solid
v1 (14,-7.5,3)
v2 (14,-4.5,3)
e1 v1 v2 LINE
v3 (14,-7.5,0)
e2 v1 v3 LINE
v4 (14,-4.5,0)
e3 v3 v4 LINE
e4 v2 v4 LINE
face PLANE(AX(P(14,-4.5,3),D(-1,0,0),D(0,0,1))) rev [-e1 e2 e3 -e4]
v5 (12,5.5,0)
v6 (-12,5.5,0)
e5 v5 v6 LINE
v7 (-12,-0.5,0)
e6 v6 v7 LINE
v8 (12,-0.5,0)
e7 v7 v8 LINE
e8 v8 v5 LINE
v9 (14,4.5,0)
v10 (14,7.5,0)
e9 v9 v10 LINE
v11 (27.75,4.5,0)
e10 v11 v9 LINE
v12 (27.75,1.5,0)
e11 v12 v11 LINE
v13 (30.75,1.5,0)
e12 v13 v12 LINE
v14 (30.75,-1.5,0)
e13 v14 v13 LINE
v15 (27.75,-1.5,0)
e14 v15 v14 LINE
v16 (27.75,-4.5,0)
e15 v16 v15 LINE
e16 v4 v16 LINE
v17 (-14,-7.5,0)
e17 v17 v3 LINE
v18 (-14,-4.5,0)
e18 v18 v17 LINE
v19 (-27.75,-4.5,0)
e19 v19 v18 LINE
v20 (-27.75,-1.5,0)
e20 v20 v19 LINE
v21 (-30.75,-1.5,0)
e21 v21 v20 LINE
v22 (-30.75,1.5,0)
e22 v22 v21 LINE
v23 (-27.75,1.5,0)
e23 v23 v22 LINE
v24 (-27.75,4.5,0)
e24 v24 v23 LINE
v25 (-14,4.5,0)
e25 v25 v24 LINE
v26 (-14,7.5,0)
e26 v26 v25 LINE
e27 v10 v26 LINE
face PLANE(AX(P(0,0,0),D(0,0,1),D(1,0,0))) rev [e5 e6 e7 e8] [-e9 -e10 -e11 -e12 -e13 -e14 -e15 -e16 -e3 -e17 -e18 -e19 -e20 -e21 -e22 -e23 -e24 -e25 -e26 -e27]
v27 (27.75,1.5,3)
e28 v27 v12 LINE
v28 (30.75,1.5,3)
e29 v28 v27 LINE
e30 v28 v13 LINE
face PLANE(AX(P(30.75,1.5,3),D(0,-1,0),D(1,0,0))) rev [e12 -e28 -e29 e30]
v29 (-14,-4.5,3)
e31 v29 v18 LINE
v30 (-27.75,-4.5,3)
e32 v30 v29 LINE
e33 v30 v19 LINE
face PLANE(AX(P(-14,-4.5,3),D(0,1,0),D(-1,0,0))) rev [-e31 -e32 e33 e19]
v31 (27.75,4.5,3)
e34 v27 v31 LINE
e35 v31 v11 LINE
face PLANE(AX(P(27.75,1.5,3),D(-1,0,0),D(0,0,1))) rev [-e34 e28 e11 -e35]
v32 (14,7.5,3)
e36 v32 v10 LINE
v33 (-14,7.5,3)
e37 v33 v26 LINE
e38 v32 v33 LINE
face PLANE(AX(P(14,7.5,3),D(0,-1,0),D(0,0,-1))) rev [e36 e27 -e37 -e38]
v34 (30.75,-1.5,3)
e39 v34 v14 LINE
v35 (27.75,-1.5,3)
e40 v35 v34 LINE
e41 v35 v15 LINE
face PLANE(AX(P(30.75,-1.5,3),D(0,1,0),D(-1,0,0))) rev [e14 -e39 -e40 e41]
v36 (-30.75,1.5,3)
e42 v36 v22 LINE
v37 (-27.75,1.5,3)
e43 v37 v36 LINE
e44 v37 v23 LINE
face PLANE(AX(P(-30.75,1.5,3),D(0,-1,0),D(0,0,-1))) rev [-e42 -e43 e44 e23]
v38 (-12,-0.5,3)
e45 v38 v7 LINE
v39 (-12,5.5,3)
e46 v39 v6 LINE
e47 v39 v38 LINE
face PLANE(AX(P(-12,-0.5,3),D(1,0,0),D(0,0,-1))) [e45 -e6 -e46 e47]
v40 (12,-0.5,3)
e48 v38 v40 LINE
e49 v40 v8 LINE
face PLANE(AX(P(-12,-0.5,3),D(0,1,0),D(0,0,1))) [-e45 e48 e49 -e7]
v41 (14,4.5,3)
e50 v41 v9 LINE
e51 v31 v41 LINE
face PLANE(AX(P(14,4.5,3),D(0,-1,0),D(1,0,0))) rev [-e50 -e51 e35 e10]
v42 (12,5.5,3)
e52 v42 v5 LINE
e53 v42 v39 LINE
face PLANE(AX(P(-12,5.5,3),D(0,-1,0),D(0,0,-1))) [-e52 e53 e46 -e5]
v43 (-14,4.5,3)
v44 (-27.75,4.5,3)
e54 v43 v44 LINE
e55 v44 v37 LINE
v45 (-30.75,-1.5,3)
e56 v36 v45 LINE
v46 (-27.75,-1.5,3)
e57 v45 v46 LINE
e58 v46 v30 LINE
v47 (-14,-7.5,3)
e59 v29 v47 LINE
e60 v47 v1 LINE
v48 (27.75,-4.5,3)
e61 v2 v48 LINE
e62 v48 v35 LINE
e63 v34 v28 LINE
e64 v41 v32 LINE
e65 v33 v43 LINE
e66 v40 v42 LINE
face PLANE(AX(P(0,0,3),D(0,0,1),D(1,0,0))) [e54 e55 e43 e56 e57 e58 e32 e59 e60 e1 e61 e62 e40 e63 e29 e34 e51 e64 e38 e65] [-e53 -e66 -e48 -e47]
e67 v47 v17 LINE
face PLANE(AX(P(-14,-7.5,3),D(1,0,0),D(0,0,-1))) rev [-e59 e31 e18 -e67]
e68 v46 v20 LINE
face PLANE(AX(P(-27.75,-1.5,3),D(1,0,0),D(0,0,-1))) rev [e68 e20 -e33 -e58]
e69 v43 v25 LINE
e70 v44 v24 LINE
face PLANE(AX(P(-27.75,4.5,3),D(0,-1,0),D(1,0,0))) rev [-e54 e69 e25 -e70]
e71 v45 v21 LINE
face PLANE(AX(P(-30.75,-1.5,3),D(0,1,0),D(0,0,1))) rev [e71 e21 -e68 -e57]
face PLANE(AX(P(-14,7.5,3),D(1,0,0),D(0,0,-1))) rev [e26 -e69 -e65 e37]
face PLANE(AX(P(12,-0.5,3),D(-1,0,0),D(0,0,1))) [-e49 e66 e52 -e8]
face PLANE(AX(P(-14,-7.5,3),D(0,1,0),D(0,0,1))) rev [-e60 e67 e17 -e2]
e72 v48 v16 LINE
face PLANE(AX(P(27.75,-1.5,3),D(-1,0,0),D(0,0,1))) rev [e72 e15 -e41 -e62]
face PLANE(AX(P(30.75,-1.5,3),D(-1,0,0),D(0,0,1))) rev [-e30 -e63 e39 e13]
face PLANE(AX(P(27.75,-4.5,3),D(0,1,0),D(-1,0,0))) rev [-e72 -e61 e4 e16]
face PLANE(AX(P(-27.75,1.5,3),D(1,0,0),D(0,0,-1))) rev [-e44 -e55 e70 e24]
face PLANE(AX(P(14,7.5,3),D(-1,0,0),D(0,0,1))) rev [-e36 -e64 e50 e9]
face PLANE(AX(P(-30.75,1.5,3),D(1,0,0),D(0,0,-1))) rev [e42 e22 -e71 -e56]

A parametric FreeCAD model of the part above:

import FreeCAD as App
import Part
import Sketcher
Q = App.Units.Quantity


def add_polygon(sketch, points):
    """Adds a closed chain of lines whose ends are joined by coincident constraints."""
    first, n = sketch.GeometryCount, len(points)
    for a, b in zip(points, points[1:] + points[:1]):
        sketch.addGeometry(Part.LineSegment(App.Vector(*a, 0), App.Vector(*b, 0)), False)
    for i in range(n):
        sketch.addConstraint(Sketcher.Constraint("Coincident", first + i, 2, first + (i + 1) % n, 1))

doc = App.newDocument("Part")
body = doc.addObject("PartDesign::Body", "Body")

# Sketch on XY plane
sketch1 = body.newObject("Sketcher::SketchObject", "Sketch")
sketch1.AttachmentSupport = (doc.getObject("XY_Plane"), [""])
sketch1.MapMode = "FlatFace"
add_polygon(sketch1, [(-14, -7.5), (14, -7.5), (14, -4.5), (27.8, -4.5), (27.8, -1.5), (30.8, -1.5), (30.8, 1.5), (27.8, 1.5), (27.8, 4.5), (14, 4.5), (14, 7.5), (-14, 7.5), (-14, 4.5), (-27.8, 4.5), (-27.8, 1.5), (-30.8, 1.5), (-30.8, -1.5), (-27.8, -1.5), (-27.8, -4.5), (-14, -4.5)])  # lines 0-19
add_polygon(sketch1, [(12, -0.5), (-12, -0.5), (-12, 5.5), (12, 5.5)])  # lines 20-23
sketch1.addConstraint(Sketcher.Constraint("Horizontal", 0))
sketch1.addConstraint(Sketcher.Constraint("Vertical", 1))
sketch1.addConstraint(Sketcher.Constraint("Horizontal", 2))
sketch1.addConstraint(Sketcher.Constraint("Vertical", 3))
sketch1.addConstraint(Sketcher.Constraint("Horizontal", 4))
sketch1.addConstraint(Sketcher.Constraint("Vertical", 5))
sketch1.addConstraint(Sketcher.Constraint("Horizontal", 6))
sketch1.addConstraint(Sketcher.Constraint("Vertical", 7))
sketch1.addConstraint(Sketcher.Constraint("Horizontal", 8))
sketch1.addConstraint(Sketcher.Constraint("Vertical", 9))
sketch1.addConstraint(Sketcher.Constraint("Horizontal", 10))
sketch1.addConstraint(Sketcher.Constraint("Vertical", 11))
sketch1.addConstraint(Sketcher.Constraint("Horizontal", 12))
sketch1.addConstraint(Sketcher.Constraint("Vertical", 13))
sketch1.addConstraint(Sketcher.Constraint("Horizontal", 14))
sketch1.addConstraint(Sketcher.Constraint("Vertical", 15))
sketch1.addConstraint(Sketcher.Constraint("Horizontal", 16))
sketch1.addConstraint(Sketcher.Constraint("Vertical", 17))
sketch1.addConstraint(Sketcher.Constraint("Horizontal", 18))
sketch1.addConstraint(Sketcher.Constraint("Vertical", 19))
sketch1.addConstraint(Sketcher.Constraint("Horizontal", 20))
sketch1.addConstraint(Sketcher.Constraint("Vertical", 21))
sketch1.addConstraint(Sketcher.Constraint("Horizontal", 22))
sketch1.addConstraint(Sketcher.Constraint("Vertical", 23))
sketch1.addConstraint(Sketcher.Constraint("Symmetric", 0, 2, 10, 2, -1, 1))
sketch1.addConstraint(Sketcher.Constraint("Symmetric", 2, 2, 12, 2, -1, 1))
sketch1.addConstraint(Sketcher.Constraint("Symmetric", 4, 2, 14, 2, -1, 1))
sketch1.addConstraint(Sketcher.Constraint("Symmetric", 6, 2, 16, 2, -1, 1))
sketch1.addConstraint(Sketcher.Constraint("Symmetric", 8, 2, 18, 2, -1, 1))
sketch1.addConstraint(Sketcher.Constraint("Symmetric", 8, 2, 11, 2, -2))
sketch1.addConstraint(Sketcher.Constraint("Symmetric", 6, 2, 13, 2, -2))
sketch1.addConstraint(Sketcher.Constraint("Equal", 16, 1))
sketch1.addConstraint(Sketcher.Constraint("Equal", 1, 3))
sketch1.addConstraint(Sketcher.Constraint("Equal", 3, 5))
sketch1.addConstraint(Sketcher.Constraint("DistanceX", 0, 1, 0, 2, Q("28 mm")))
sketch1.addConstraint(Sketcher.Constraint("DistanceX", 4, 1, 4, 2, Q("3 mm")))
sketch1.addConstraint(Sketcher.Constraint("DistanceX", 20, 2, 20, 1, Q("24 mm")))
sketch1.addConstraint(Sketcher.Constraint("DistanceY", 21, 1, 21, 2, Q("6 mm")))
sketch1.addConstraint(Sketcher.Constraint("DistanceX", 20, 2, -1, 1, Q("12 mm")))
sketch1.addConstraint(Sketcher.Constraint("DistanceY", 18, 2, 20, 2, Q("4 mm")))
sketch1.addConstraint(Sketcher.Constraint("DistanceX", 2, 1, 2, 2, Q("13.75 mm")))
pad1 = body.newObject("PartDesign::Pad", "Pad")
pad1.Profile = sketch1
pad1.Length = 3

doc.recompute()
